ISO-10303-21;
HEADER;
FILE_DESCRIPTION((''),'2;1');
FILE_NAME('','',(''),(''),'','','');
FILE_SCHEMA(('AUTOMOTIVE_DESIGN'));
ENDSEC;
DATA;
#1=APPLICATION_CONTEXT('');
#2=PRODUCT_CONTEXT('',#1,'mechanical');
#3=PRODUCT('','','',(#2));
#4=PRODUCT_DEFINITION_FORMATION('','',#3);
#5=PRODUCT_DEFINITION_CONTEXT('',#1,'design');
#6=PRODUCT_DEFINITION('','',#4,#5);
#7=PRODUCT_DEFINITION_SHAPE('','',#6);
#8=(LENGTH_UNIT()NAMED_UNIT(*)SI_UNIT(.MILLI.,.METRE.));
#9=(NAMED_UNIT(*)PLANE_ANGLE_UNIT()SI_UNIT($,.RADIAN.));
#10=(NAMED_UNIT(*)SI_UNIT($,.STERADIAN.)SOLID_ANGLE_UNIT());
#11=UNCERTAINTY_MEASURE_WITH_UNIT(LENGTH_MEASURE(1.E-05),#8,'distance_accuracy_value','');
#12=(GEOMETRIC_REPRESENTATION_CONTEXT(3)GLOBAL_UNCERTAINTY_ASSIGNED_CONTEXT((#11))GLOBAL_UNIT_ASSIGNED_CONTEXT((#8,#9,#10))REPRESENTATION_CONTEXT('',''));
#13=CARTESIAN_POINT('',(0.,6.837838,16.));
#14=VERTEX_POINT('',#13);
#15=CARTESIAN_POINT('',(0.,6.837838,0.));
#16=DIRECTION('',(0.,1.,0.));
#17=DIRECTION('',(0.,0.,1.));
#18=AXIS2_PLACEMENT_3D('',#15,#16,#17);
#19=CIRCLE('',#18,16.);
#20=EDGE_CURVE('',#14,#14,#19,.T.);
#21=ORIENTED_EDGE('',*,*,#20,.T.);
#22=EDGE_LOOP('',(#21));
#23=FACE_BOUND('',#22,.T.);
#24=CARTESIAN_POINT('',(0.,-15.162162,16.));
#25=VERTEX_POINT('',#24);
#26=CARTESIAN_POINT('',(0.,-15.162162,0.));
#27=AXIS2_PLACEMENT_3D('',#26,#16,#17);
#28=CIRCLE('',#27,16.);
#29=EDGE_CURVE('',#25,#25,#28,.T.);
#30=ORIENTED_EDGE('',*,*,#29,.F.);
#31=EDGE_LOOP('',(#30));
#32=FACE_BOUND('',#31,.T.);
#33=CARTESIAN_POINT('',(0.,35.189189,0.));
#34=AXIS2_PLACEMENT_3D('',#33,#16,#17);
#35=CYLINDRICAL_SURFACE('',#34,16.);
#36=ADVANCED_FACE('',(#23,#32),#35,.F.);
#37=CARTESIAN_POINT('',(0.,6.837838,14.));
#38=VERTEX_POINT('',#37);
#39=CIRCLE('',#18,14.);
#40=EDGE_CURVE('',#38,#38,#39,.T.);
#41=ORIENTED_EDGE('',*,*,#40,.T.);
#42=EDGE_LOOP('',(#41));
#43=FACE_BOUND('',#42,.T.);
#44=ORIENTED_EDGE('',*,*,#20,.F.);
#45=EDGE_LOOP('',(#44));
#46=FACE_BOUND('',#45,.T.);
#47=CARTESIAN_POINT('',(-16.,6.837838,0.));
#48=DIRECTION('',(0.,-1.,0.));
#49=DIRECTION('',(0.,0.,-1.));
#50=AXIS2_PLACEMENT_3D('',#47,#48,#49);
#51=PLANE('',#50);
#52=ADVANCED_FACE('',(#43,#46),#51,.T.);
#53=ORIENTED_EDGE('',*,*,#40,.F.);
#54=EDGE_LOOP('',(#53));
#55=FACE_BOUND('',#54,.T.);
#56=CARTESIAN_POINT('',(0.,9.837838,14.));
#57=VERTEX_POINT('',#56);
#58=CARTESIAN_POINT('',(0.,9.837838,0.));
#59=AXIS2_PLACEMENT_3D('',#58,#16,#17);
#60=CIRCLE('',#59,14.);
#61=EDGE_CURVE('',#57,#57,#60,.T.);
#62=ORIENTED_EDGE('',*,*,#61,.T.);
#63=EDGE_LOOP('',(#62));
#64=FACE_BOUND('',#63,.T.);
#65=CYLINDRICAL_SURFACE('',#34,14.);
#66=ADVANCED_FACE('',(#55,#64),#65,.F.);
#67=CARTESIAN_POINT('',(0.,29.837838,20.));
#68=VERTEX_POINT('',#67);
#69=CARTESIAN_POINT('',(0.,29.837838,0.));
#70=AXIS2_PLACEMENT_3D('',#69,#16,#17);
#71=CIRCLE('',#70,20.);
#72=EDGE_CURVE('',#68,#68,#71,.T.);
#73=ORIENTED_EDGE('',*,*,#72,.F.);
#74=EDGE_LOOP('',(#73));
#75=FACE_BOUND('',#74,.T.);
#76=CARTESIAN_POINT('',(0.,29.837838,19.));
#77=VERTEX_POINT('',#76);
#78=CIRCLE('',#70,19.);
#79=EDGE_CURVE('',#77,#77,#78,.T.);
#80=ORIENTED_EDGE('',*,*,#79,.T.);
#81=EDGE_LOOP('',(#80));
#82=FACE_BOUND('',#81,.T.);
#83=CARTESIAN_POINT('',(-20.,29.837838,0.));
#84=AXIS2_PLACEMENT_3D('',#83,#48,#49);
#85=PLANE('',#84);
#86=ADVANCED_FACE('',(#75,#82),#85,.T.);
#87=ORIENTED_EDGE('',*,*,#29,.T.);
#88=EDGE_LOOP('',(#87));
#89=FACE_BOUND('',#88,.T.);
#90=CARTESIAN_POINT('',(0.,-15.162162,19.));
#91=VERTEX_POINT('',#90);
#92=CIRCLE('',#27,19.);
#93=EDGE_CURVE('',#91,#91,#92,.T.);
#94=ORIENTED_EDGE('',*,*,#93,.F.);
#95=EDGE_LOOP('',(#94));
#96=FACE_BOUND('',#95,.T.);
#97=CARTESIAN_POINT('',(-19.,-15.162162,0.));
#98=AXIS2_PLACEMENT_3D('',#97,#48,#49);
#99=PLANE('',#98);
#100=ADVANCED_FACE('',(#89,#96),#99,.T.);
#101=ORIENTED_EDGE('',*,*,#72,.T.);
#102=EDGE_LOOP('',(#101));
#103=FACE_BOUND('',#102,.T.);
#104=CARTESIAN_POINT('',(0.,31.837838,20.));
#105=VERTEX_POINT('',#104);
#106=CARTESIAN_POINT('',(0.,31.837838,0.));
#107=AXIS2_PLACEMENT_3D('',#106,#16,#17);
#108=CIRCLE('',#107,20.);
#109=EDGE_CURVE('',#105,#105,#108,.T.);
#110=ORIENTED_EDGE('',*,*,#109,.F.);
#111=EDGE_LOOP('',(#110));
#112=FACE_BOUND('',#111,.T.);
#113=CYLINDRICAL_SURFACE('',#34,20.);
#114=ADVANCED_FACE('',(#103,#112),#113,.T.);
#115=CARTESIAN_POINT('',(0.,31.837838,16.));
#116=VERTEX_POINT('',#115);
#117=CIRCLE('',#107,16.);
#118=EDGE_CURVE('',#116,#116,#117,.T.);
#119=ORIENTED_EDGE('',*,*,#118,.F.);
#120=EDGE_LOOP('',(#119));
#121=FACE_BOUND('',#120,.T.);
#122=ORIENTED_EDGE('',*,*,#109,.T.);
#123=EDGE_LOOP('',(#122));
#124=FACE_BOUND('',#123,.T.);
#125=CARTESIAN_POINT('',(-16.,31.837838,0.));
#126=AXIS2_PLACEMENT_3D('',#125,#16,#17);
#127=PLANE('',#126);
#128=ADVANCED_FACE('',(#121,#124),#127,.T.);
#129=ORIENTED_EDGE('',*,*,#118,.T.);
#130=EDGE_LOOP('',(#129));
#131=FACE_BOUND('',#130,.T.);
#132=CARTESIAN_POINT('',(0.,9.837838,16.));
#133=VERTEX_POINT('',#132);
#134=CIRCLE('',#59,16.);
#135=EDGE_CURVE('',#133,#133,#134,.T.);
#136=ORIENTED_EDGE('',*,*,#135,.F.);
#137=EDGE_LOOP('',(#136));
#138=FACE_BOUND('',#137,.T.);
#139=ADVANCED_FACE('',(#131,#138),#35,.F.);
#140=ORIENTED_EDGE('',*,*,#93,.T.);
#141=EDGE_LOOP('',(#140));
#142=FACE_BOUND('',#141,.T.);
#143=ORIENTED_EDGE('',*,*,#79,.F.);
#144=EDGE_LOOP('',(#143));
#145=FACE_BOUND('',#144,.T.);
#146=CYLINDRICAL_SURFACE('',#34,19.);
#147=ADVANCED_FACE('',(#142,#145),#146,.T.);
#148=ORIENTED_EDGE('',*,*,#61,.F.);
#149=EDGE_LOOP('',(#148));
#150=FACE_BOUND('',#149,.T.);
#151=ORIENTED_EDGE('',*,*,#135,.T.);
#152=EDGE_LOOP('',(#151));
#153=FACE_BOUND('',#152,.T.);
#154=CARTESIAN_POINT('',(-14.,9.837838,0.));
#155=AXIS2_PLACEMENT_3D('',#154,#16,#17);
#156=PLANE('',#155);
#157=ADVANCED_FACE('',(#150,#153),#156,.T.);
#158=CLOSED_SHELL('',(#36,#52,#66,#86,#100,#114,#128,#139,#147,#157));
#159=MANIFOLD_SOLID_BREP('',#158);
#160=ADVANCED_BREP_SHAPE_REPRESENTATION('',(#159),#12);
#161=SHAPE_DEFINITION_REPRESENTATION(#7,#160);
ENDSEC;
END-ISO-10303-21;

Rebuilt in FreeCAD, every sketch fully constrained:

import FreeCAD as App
import Part
import Sketcher
from FreeCAD import Vector


def add_polygon(sketch, points):
    """Adds a closed chain of lines whose ends are joined by coincident constraints."""
    first, n = sketch.GeometryCount, len(points)
    for a, b in zip(points, points[1:] + points[:1]):
        sketch.addGeometry(Part.LineSegment(App.Vector(*a, 0), App.Vector(*b, 0)), False)
    for i in range(n):
        sketch.addConstraint(Sketcher.Constraint("Coincident", first + i, 2, first + (i + 1) % n, 1))

doc = App.newDocument("Part")
body = doc.addObject("PartDesign::Body", "Body")

# Sketch on XY plane
sketch1 = body.newObject("Sketcher::SketchObject", "Sketch")
sketch1.AttachmentSupport = (doc.getObject("XY_Plane"), [""])
sketch1.MapMode = "FlatFace"
add_polygon(sketch1, [(-16, -15.2), (-16, 6.8), (-14, 6.8), (-14, 9.8), (-16, 9.8), (-16, 31.8), (-20, 31.8), (-20, 29.8), (-19, 29.8), (-19, -15.2)])  # lines 0-9
sketch1.addConstraint([
    Sketcher.Constraint("Vertical", 0),
    Sketcher.Constraint("Horizontal", 1),
    Sketcher.Constraint("Vertical", 2),
    Sketcher.Constraint("Horizontal", 3),
    Sketcher.Constraint("Vertical", 4),
    Sketcher.Constraint("Horizontal", 5),
    Sketcher.Constraint("Vertical", 6),
    Sketcher.Constraint("Horizontal", 7),
    Sketcher.Constraint("Vertical", 8),
    Sketcher.Constraint("Horizontal", 9),
    Sketcher.Constraint("Vertical", 0, 2, 3, 2),
    Sketcher.Constraint("Equal", 9, 2),
    Sketcher.Constraint("Equal", 0, 4),
    Sketcher.Constraint("Equal", 3, 6),
    Sketcher.Constraint("DistanceX", 1, 1, 1, 2, 2.0),
    Sketcher.Constraint("DistanceX", 5, 2, 5, 1, 4.0),
    Sketcher.Constraint("DistanceX", 7, 1, 7, 2, 1.0),
    Sketcher.Constraint("DistanceY", 0, 1, 0, 2, 22.0),
    Sketcher.Constraint("DistanceX", 0, 2, -1, 1, 16.0),
    Sketcher.Constraint("DistanceY", -1, 1, 0, 2, 6.837838),
])
revolution = body.newObject("PartDesign::Revolution", "Revolution")
revolution.Profile = sketch1
revolution.ReferenceAxis = (sketch1, ["V_Axis"])
revolution.Angle = 360

doc.recompute()
